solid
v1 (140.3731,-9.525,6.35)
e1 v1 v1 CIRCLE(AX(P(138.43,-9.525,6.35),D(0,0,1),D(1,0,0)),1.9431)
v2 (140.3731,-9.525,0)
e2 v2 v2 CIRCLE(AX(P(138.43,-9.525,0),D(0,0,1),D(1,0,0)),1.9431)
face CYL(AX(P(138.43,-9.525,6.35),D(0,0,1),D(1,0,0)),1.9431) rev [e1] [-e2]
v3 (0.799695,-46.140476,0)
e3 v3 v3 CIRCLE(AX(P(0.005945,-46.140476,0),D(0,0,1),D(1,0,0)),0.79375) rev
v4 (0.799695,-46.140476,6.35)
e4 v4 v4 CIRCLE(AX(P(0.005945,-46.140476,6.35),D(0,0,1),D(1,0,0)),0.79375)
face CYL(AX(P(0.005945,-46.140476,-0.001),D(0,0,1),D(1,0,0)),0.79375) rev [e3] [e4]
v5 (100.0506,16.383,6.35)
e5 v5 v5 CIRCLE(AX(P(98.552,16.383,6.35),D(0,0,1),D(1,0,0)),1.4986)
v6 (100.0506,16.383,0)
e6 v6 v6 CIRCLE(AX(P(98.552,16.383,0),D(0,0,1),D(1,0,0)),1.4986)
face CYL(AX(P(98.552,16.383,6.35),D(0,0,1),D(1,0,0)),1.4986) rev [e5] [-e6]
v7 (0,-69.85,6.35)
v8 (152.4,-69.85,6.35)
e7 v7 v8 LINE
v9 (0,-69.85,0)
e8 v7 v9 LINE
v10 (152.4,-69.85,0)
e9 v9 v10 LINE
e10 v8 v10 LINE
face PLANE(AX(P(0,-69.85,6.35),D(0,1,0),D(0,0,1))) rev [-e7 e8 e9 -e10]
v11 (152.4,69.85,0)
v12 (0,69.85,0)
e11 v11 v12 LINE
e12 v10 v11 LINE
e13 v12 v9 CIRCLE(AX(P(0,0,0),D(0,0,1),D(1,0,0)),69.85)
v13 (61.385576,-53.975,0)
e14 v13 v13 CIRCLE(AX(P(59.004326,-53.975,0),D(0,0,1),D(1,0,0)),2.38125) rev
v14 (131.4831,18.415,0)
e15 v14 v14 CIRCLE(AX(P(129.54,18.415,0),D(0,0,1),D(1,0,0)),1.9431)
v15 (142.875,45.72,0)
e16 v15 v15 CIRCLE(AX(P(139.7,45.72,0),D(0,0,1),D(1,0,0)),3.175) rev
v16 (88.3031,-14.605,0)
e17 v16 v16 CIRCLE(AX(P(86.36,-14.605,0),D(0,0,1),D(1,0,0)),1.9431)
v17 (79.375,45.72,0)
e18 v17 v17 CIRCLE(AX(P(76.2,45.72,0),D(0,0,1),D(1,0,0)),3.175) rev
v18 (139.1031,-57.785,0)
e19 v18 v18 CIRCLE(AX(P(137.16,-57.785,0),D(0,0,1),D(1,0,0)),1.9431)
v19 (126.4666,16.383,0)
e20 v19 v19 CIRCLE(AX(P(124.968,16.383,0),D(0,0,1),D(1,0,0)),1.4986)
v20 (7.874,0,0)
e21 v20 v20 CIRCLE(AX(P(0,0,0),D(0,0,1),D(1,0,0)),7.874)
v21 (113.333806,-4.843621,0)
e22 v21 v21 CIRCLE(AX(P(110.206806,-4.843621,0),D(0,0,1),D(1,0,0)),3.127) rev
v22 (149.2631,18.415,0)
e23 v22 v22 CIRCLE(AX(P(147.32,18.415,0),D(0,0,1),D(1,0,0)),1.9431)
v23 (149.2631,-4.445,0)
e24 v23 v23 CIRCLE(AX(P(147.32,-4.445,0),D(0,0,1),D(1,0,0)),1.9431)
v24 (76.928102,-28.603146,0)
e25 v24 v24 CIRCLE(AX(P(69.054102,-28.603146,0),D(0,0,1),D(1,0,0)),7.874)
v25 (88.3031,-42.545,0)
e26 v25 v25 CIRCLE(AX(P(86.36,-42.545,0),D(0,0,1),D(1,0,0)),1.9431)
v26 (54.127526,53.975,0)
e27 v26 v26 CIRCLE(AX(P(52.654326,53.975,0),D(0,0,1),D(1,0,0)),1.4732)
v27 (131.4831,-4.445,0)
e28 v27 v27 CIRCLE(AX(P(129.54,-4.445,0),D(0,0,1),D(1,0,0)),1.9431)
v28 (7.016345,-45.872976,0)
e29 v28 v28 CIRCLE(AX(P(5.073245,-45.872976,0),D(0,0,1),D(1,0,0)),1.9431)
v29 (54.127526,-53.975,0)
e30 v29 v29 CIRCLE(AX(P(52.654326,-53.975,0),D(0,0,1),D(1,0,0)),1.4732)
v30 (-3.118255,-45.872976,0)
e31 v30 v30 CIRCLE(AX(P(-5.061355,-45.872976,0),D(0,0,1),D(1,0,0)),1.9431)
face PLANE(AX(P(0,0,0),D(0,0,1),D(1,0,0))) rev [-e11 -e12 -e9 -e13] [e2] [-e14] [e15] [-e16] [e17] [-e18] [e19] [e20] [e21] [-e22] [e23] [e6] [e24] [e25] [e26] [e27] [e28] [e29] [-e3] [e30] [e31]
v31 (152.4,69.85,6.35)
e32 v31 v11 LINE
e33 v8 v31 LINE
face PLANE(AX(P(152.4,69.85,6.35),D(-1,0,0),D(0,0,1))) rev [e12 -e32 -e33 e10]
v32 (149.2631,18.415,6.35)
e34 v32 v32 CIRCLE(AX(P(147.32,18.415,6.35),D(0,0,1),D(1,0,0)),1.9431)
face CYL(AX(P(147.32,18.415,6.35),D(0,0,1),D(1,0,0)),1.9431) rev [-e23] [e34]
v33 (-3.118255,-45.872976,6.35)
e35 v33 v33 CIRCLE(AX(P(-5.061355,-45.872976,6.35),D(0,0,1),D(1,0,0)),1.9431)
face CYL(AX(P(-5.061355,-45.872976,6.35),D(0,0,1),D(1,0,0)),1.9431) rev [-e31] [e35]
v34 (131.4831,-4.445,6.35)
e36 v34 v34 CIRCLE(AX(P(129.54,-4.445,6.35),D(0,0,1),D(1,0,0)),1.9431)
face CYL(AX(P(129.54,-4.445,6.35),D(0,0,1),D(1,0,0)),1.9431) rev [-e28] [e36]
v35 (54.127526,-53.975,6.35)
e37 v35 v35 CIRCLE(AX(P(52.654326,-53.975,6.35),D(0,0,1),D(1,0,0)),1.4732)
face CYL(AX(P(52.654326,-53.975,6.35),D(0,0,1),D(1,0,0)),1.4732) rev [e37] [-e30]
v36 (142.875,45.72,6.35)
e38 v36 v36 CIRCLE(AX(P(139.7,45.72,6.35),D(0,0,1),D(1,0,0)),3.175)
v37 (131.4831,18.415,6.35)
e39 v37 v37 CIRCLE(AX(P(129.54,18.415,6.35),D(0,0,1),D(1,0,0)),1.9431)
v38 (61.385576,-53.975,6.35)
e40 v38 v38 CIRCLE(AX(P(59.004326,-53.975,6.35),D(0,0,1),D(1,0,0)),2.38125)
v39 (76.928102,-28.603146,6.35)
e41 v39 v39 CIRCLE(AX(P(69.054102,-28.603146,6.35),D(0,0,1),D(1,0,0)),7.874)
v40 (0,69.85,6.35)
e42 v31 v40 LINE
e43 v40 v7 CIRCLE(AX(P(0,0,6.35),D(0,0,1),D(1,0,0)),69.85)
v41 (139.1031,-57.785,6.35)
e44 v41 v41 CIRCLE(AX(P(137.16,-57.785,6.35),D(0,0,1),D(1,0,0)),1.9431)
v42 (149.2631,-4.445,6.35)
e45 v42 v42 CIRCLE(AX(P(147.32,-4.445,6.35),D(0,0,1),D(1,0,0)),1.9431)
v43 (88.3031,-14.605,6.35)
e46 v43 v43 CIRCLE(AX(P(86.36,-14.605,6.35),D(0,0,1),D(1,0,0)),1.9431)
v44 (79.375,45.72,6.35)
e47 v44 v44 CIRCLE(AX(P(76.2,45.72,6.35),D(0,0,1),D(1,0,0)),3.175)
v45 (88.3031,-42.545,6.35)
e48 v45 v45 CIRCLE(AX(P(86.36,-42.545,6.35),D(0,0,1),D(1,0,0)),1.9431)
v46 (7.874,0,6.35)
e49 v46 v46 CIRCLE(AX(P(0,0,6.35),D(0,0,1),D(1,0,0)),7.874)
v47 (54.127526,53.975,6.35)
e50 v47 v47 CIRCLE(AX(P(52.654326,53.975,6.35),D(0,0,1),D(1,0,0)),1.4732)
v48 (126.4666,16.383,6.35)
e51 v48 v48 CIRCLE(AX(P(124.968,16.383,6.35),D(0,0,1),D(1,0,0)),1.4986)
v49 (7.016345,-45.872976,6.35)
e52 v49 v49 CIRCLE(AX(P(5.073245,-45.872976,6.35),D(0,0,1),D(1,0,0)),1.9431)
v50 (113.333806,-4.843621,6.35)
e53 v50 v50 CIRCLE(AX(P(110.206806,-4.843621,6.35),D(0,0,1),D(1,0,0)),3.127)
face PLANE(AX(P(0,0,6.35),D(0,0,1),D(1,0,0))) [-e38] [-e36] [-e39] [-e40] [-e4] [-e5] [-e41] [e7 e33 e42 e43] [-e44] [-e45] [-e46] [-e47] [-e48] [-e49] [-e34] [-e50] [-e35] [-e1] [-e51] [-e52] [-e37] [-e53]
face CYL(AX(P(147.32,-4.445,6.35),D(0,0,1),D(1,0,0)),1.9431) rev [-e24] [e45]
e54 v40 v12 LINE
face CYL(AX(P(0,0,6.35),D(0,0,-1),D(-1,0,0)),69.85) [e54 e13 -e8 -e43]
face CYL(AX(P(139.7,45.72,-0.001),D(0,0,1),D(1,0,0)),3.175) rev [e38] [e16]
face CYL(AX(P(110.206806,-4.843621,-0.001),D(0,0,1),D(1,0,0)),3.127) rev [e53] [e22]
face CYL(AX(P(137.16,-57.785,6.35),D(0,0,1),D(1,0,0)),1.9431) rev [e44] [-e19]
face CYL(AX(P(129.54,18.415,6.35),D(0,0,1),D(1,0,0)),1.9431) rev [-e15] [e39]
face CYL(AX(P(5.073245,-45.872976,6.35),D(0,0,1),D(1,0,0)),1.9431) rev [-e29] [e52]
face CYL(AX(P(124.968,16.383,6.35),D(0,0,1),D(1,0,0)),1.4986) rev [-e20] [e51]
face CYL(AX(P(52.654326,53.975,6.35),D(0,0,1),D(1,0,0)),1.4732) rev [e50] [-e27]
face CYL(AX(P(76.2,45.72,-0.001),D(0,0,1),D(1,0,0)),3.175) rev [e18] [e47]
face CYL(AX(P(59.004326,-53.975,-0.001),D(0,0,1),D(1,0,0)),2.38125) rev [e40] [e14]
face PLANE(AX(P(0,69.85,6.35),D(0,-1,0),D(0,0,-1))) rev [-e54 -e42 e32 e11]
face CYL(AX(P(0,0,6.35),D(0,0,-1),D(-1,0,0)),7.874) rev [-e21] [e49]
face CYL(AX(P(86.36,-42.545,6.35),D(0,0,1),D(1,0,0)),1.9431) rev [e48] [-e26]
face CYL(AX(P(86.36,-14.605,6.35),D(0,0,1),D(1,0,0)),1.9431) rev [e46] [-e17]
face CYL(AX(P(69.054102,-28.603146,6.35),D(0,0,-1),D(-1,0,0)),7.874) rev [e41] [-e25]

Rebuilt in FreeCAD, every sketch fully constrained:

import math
import FreeCAD as App
import Part
import Sketcher
Q = App.Units.Quantity

doc = App.newDocument("Part")
body = doc.addObject("PartDesign::Body", "Body")

sketch1 = doc.addObject("Sketcher::SketchObject", "Sketch")
body.addObject(sketch1)
sketch1.AttachmentSupport = (doc.XY_Plane, [""])
sketch1.MapMode = "FlatFace"
sketch1.addGeometry([
    Part.LineSegment(App.Vector(152, -70, 0), App.Vector(152, 70, 0)),
    Part.LineSegment(App.Vector(152, 70, 0), App.Vector(0, 70, 0)),
    Part.ArcOfCircle(Part.Circle(App.Vector(0, 0, 0), App.Vector(0, 0, 1), 70), math.radians(90), math.radians(270)),
    Part.LineSegment(App.Vector(0, -70, 0), App.Vector(152, -70, 0)),
    Part.Circle(App.Vector(69, -29, 0), App.Vector(0, 0, 1), 8),
    Part.Circle(App.Vector(0, 0, 0), App.Vector(0, 0, 1), 8),
], False)
sketch1.addConstraint([
    Sketcher.Constraint("Coincident", 0, 2, 1, 1),
    Sketcher.Constraint("Tangent", 1, 2, 2, 1),
    Sketcher.Constraint("Tangent", 2, 2, 3, 1),
    Sketcher.Constraint("Coincident", 3, 2, 0, 1),
    Sketcher.Constraint("Vertical", 0),
    Sketcher.Constraint("Horizontal", 1),
    Sketcher.Constraint("Horizontal", 3),
    Sketcher.Constraint("Coincident", 2, 3, -1, 1),
    Sketcher.Constraint("Coincident", 5, 3, -1, 1),
    Sketcher.Constraint("Equal", 4, 5),
    Sketcher.Constraint("Diameter", 4, Q("0.62 in")),
    Sketcher.Constraint("DistanceX", 1, 2, 1, 1, Q("6 in")),
    Sketcher.Constraint("Radius", 2, Q("2.75 in")),
    Sketcher.Constraint("DistanceX", -1, 1, 4, 3, Q("69.054102 mm")),
    Sketcher.Constraint("DistanceY", 4, 3, -1, 1, Q("28.603146 mm")),
])
pad1 = doc.addObject("PartDesign::Pad", "Pad")
body.addObject(pad1)
pad1.Profile = sketch1
pad1.Length = Q("0.25 in")

sketch2 = doc.addObject("Sketcher::SketchObject", "Sketch001")
body.addObject(sketch2)
sketch2.AttachmentSupport = (doc.XY_Plane, [""])
sketch2.MapMode = "FlatFace"
sketch2.AttachmentOffset = App.Placement(App.Vector(0, 0, 0.25 * 25.4), App.Rotation())
sketch2.addGeometry(Part.Circle(App.Vector(76.2, 45.7, 0), App.Vector(0, 0, 1), 3.2), False)
sketch2.addConstraint([
    Sketcher.Constraint("Diameter", 0, Q("0.25 in")),
    Sketcher.Constraint("DistanceX", -1, 1, 0, 3, Q("3 in")),
    Sketcher.Constraint("DistanceY", -1, 1, 0, 3, Q("1.8 in")),
])
pocket1 = doc.addObject("PartDesign::Pocket", "Pocket")
body.addObject(pocket1)
pocket1.Profile = sketch2
pocket1.Type = "UpToFirst"

sketch3 = doc.addObject("Sketcher::SketchObject", "Sketch002")
body.addObject(sketch3)
sketch3.AttachmentSupport = (doc.XY_Plane, [""])
sketch3.MapMode = "FlatFace"
sketch3.AttachmentOffset = App.Placement(App.Vector(0, 0, 0.25 * 25.4), App.Rotation())
sketch3.addGeometry(Part.Circle(App.Vector(139.7, 45.7, 0), App.Vector(0, 0, 1), 3.2), False)
sketch3.addConstraint([
    Sketcher.Constraint("Diameter", 0, Q("0.25 in")),
    Sketcher.Constraint("DistanceX", -1, 1, 0, 3, Q("5.5 in")),
    Sketcher.Constraint("DistanceY", -1, 1, 0, 3, Q("1.8 in")),
])
pocket2 = doc.addObject("PartDesign::Pocket", "Pocket001")
body.addObject(pocket2)
pocket2.Profile = sketch3
pocket2.Type = "UpToFirst"

sketch4 = doc.addObject("Sketcher::SketchObject", "Sketch003")
body.addObject(sketch4)
sketch4.AttachmentSupport = (doc.XY_Plane, [""])
sketch4.MapMode = "FlatFace"
sketch4.AttachmentOffset = App.Placement(App.Vector(0, 0, 0.25 * 25.4), App.Rotation())
sketch4.addGeometry(Part.Circle(App.Vector(110.2, -4.8, 0), App.Vector(0, 0, 1), 3.1), False)
sketch4.addConstraint([
    Sketcher.Constraint("Diameter", 0, Q("6.254 mm")),
    Sketcher.Constraint("DistanceY", 0, 3, -1, 1, Q("4.843621 mm")),
    Sketcher.Constraint("DistanceX", -1, 1, 0, 3, Q("110.206806 mm")),
])
pocket3 = doc.addObject("PartDesign::Pocket", "Pocket002")
body.addObject(pocket3)
pocket3.Profile = sketch4
pocket3.Type = "UpToFirst"

sketch5 = doc.addObject("Sketcher::SketchObject", "Sketch004")
body.addObject(sketch5)
sketch5.AttachmentSupport = (doc.XY_Plane, [""])
sketch5.MapMode = "FlatFace"
sketch5.AttachmentOffset = App.Placement(App.Vector(0, 0, 0.25 * 25.4), App.Rotation())
sketch5.addGeometry([
    Part.Circle(App.Vector(52.7, 54, 0), App.Vector(0, 0, 1), 1.5),
    Part.Circle(App.Vector(52.7, -54, 0), App.Vector(0, 0, 1), 1.5),
], False)
sketch5.addConstraint([
    Sketcher.Constraint("Equal", 0, 1),
    Sketcher.Constraint("Symmetric", 0, 3, 1, 3, -1),
    Sketcher.Constraint("Diameter", 0, Q("0.116 in")),
    Sketcher.Constraint("DistanceY", 1, 3, 0, 3, Q("4.25 in")),
    Sketcher.Constraint("DistanceX", -1, 1, 0, 3, Q("52.654326 mm")),
])
doc.recompute()
hole = doc.addObject("PartDesign::Hole", "Hole")
body.addObject(hole)
hole.Profile = sketch5
hole.ThreadType = "None"
hole.Diameter = Q("0.116 in")
hole.DepthType = "Dimension"
hole.Depth = Q("0.25 in")
hole.DrillPoint = "Flat"

sketch6 = doc.addObject("Sketcher::SketchObject", "Sketch005")
body.addObject(sketch6)
sketch6.AttachmentSupport = (doc.XY_Plane, [""])
sketch6.MapMode = "FlatFace"
sketch6.AttachmentOffset = App.Placement(App.Vector(0, 0, 0.25 * 25.4), App.Rotation())
sketch6.addGeometry([
    Part.Circle(App.Vector(129.5, 18.4, 0), App.Vector(0, 0, 1), 1.9),
    Part.Circle(App.Vector(147.3, 18.4, 0), App.Vector(0, 0, 1), 1.9),
    Part.Circle(App.Vector(147.3, -4.4, 0), App.Vector(0, 0, 1), 1.9),
    Part.Circle(App.Vector(129.5, -4.4, 0), App.Vector(0, 0, 1), 1.9),
    Part.Circle(App.Vector(138.4, -9.5, 0), App.Vector(0, 0, 1), 1.9),
    Part.Circle(App.Vector(86.4, -14.6, 0), App.Vector(0, 0, 1), 1.9),
    Part.Circle(App.Vector(86.4, -42.5, 0), App.Vector(0, 0, 1), 1.9),
    Part.Circle(App.Vector(137.2, -57.8, 0), App.Vector(0, 0, 1), 1.9),
    Part.Circle(App.Vector(5.1, -45.9, 0), App.Vector(0, 0, 1), 1.9),
    Part.Circle(App.Vector(-5.1, -45.9, 0), App.Vector(0, 0, 1), 1.9),
], False)
sketch6.addConstraint([
    Sketcher.Constraint("Equal", 0, 1),
    Sketcher.Constraint("Equal", 1, 2),
    Sketcher.Constraint("Equal", 2, 3),
    Sketcher.Constraint("Equal", 3, 4),
    Sketcher.Constraint("Equal", 4, 5),
    Sketcher.Constraint("Equal", 5, 6),
    Sketcher.Constraint("Equal", 6, 7),
    Sketcher.Constraint("Equal", 7, 8),
    Sketcher.Constraint("Equal", 8, 9),
    Sketcher.Constraint("Horizontal", 0, 3, 1, 3),
    Sketcher.Constraint("Horizontal", 2, 3, 3, 3),
    Sketcher.Constraint("Horizontal", 8, 3, 9, 3),
    Sketcher.Constraint("Vertical", 1, 3, 2, 3),
    Sketcher.Constraint("Vertical", 0, 3, 3, 3),
    Sketcher.Constraint("Vertical", 5, 3, 6, 3),
    Sketcher.Constraint("Diameter", 0, Q("0.153 in")),
    Sketcher.Constraint("DistanceX", 6, 3, 7, 3, Q("2 in")),
    Sketcher.Constraint("DistanceX", -1, 1, 0, 3, Q("5.1 in")),
    Sketcher.Constraint("DistanceX", -1, 1, 1, 3, Q("5.8 in")),
    Sketcher.Constraint("DistanceX", -1, 1, 5, 3, Q("3.4 in")),
    Sketcher.Constraint("DistanceY", 2, 3, 1, 3, Q("0.9 in")),
    Sketcher.Constraint("DistanceY", 4, 3, 2, 3, Q("0.2 in")),
    Sketcher.Constraint("DistanceY", 5, 3, 3, 3, Q("0.4 in")),
    Sketcher.Constraint("DistanceY", 6, 3, 5, 3, Q("1.1 in")),
    Sketcher.Constraint("DistanceY", 7, 3, 4, 3, Q("1.9 in")),
    Sketcher.Constraint("DistanceX", -1, 1, 4, 3, Q("5.45 in")),
    Sketcher.Constraint("DistanceY", -1, 1, 0, 3, Q("0.725 in")),
    Sketcher.Constraint("DistanceX", 9, 3, 8, 3, Q("0.399 in")),
    Sketcher.Constraint("DistanceX", -1, 1, 8, 3, Q("5.073245 mm")),
    Sketcher.Constraint("DistanceY", 8, 3, -1, 1, Q("45.872976 mm")),
])
doc.recompute()
hole2 = doc.addObject("PartDesign::Hole", "Hole001")
body.addObject(hole2)
hole2.Profile = sketch6
hole2.ThreadType = "None"
hole2.Diameter = Q("0.153 in")
hole2.DepthType = "Dimension"
hole2.Depth = Q("0.25 in")
hole2.DrillPoint = "Flat"

sketch7 = doc.addObject("Sketcher::SketchObject", "Sketch006")
body.addObject(sketch7)
sketch7.AttachmentSupport = (doc.XY_Plane, [""])
sketch7.MapMode = "FlatFace"
sketch7.AttachmentOffset = App.Placement(App.Vector(0, 0, 0.25 * 25.4), App.Rotation())
sketch7.addGeometry(Part.Circle(App.Vector(0, -46.1, 0), App.Vector(0, 0, 1), 0.8), False)
sketch7.addConstraint([
    Sketcher.Constraint("Diameter", 0, Q("0.0625 in")),
    Sketcher.Constraint("DistanceX", -1, 1, 0, 3, Q("0.005945 mm")),
    Sketcher.Constraint("DistanceY", 0, 3, -1, 1, Q("46.140476 mm")),
])
pocket4 = doc.addObject("PartDesign::Pocket", "Pocket003")
body.addObject(pocket4)
pocket4.Profile = sketch7
pocket4.Type = "UpToFirst"

sketch8 = doc.addObject("Sketcher::SketchObject", "Sketch007")
body.addObject(sketch8)
sketch8.AttachmentSupport = (doc.XY_Plane, [""])
sketch8.MapMode = "FlatFace"
sketch8.AttachmentOffset = App.Placement(App.Vector(0, 0, 0.25 * 25.4), App.Rotation())
sketch8.addGeometry(Part.Circle(App.Vector(59, -54, 0), App.Vector(0, 0, 1), 2.4), False)
sketch8.addConstraint([
    Sketcher.Constraint("Diameter", 0, Q("0.1875 in")),
    Sketcher.Constraint("DistanceY", 0, 3, -1, 1, Q("2.125 in")),
    Sketcher.Constraint("DistanceX", -1, 1, 0, 3, Q("59.004326 mm")),
])
pocket5 = doc.addObject("PartDesign::Pocket", "Pocket004")
body.addObject(pocket5)
pocket5.Profile = sketch8
pocket5.Type = "UpToFirst"

sketch9 = doc.addObject("Sketcher::SketchObject", "Sketch008")
body.addObject(sketch9)
sketch9.AttachmentSupport = (doc.XY_Plane, [""])
sketch9.MapMode = "FlatFace"
sketch9.AttachmentOffset = App.Placement(App.Vector(0, 0, 0.25 * 25.4), App.Rotation())
sketch9.addGeometry([
    Part.Circle(App.Vector(98.6, 16.4, 0), App.Vector(0, 0, 1), 1.5),
    Part.Circle(App.Vector(125, 16.4, 0), App.Vector(0, 0, 1), 1.5),
], False)
sketch9.addConstraint([
    Sketcher.Constraint("Equal", 0, 1),
    Sketcher.Constraint("Horizontal", 0, 3, 1, 3),
    Sketcher.Constraint("Diameter", 0, Q("0.118 in")),
    Sketcher.Constraint("DistanceX", -1, 1, 0, 3, Q("3.88 in")),
    Sketcher.Constraint("DistanceX", -1, 1, 1, 3, Q("4.92 in")),
    Sketcher.Constraint("DistanceY", -1, 1, 0, 3, Q("0.645 in")),
])
doc.recompute()
hole3 = doc.addObject("PartDesign::Hole", "Hole002")
body.addObject(hole3)
hole3.Profile = sketch9
hole3.ThreadType = "None"
hole3.Diameter = Q("0.118 in")
hole3.DepthType = "Dimension"
hole3.Depth = Q("0.25 in")
hole3.DrillPoint = "Flat"

doc.recompute()
